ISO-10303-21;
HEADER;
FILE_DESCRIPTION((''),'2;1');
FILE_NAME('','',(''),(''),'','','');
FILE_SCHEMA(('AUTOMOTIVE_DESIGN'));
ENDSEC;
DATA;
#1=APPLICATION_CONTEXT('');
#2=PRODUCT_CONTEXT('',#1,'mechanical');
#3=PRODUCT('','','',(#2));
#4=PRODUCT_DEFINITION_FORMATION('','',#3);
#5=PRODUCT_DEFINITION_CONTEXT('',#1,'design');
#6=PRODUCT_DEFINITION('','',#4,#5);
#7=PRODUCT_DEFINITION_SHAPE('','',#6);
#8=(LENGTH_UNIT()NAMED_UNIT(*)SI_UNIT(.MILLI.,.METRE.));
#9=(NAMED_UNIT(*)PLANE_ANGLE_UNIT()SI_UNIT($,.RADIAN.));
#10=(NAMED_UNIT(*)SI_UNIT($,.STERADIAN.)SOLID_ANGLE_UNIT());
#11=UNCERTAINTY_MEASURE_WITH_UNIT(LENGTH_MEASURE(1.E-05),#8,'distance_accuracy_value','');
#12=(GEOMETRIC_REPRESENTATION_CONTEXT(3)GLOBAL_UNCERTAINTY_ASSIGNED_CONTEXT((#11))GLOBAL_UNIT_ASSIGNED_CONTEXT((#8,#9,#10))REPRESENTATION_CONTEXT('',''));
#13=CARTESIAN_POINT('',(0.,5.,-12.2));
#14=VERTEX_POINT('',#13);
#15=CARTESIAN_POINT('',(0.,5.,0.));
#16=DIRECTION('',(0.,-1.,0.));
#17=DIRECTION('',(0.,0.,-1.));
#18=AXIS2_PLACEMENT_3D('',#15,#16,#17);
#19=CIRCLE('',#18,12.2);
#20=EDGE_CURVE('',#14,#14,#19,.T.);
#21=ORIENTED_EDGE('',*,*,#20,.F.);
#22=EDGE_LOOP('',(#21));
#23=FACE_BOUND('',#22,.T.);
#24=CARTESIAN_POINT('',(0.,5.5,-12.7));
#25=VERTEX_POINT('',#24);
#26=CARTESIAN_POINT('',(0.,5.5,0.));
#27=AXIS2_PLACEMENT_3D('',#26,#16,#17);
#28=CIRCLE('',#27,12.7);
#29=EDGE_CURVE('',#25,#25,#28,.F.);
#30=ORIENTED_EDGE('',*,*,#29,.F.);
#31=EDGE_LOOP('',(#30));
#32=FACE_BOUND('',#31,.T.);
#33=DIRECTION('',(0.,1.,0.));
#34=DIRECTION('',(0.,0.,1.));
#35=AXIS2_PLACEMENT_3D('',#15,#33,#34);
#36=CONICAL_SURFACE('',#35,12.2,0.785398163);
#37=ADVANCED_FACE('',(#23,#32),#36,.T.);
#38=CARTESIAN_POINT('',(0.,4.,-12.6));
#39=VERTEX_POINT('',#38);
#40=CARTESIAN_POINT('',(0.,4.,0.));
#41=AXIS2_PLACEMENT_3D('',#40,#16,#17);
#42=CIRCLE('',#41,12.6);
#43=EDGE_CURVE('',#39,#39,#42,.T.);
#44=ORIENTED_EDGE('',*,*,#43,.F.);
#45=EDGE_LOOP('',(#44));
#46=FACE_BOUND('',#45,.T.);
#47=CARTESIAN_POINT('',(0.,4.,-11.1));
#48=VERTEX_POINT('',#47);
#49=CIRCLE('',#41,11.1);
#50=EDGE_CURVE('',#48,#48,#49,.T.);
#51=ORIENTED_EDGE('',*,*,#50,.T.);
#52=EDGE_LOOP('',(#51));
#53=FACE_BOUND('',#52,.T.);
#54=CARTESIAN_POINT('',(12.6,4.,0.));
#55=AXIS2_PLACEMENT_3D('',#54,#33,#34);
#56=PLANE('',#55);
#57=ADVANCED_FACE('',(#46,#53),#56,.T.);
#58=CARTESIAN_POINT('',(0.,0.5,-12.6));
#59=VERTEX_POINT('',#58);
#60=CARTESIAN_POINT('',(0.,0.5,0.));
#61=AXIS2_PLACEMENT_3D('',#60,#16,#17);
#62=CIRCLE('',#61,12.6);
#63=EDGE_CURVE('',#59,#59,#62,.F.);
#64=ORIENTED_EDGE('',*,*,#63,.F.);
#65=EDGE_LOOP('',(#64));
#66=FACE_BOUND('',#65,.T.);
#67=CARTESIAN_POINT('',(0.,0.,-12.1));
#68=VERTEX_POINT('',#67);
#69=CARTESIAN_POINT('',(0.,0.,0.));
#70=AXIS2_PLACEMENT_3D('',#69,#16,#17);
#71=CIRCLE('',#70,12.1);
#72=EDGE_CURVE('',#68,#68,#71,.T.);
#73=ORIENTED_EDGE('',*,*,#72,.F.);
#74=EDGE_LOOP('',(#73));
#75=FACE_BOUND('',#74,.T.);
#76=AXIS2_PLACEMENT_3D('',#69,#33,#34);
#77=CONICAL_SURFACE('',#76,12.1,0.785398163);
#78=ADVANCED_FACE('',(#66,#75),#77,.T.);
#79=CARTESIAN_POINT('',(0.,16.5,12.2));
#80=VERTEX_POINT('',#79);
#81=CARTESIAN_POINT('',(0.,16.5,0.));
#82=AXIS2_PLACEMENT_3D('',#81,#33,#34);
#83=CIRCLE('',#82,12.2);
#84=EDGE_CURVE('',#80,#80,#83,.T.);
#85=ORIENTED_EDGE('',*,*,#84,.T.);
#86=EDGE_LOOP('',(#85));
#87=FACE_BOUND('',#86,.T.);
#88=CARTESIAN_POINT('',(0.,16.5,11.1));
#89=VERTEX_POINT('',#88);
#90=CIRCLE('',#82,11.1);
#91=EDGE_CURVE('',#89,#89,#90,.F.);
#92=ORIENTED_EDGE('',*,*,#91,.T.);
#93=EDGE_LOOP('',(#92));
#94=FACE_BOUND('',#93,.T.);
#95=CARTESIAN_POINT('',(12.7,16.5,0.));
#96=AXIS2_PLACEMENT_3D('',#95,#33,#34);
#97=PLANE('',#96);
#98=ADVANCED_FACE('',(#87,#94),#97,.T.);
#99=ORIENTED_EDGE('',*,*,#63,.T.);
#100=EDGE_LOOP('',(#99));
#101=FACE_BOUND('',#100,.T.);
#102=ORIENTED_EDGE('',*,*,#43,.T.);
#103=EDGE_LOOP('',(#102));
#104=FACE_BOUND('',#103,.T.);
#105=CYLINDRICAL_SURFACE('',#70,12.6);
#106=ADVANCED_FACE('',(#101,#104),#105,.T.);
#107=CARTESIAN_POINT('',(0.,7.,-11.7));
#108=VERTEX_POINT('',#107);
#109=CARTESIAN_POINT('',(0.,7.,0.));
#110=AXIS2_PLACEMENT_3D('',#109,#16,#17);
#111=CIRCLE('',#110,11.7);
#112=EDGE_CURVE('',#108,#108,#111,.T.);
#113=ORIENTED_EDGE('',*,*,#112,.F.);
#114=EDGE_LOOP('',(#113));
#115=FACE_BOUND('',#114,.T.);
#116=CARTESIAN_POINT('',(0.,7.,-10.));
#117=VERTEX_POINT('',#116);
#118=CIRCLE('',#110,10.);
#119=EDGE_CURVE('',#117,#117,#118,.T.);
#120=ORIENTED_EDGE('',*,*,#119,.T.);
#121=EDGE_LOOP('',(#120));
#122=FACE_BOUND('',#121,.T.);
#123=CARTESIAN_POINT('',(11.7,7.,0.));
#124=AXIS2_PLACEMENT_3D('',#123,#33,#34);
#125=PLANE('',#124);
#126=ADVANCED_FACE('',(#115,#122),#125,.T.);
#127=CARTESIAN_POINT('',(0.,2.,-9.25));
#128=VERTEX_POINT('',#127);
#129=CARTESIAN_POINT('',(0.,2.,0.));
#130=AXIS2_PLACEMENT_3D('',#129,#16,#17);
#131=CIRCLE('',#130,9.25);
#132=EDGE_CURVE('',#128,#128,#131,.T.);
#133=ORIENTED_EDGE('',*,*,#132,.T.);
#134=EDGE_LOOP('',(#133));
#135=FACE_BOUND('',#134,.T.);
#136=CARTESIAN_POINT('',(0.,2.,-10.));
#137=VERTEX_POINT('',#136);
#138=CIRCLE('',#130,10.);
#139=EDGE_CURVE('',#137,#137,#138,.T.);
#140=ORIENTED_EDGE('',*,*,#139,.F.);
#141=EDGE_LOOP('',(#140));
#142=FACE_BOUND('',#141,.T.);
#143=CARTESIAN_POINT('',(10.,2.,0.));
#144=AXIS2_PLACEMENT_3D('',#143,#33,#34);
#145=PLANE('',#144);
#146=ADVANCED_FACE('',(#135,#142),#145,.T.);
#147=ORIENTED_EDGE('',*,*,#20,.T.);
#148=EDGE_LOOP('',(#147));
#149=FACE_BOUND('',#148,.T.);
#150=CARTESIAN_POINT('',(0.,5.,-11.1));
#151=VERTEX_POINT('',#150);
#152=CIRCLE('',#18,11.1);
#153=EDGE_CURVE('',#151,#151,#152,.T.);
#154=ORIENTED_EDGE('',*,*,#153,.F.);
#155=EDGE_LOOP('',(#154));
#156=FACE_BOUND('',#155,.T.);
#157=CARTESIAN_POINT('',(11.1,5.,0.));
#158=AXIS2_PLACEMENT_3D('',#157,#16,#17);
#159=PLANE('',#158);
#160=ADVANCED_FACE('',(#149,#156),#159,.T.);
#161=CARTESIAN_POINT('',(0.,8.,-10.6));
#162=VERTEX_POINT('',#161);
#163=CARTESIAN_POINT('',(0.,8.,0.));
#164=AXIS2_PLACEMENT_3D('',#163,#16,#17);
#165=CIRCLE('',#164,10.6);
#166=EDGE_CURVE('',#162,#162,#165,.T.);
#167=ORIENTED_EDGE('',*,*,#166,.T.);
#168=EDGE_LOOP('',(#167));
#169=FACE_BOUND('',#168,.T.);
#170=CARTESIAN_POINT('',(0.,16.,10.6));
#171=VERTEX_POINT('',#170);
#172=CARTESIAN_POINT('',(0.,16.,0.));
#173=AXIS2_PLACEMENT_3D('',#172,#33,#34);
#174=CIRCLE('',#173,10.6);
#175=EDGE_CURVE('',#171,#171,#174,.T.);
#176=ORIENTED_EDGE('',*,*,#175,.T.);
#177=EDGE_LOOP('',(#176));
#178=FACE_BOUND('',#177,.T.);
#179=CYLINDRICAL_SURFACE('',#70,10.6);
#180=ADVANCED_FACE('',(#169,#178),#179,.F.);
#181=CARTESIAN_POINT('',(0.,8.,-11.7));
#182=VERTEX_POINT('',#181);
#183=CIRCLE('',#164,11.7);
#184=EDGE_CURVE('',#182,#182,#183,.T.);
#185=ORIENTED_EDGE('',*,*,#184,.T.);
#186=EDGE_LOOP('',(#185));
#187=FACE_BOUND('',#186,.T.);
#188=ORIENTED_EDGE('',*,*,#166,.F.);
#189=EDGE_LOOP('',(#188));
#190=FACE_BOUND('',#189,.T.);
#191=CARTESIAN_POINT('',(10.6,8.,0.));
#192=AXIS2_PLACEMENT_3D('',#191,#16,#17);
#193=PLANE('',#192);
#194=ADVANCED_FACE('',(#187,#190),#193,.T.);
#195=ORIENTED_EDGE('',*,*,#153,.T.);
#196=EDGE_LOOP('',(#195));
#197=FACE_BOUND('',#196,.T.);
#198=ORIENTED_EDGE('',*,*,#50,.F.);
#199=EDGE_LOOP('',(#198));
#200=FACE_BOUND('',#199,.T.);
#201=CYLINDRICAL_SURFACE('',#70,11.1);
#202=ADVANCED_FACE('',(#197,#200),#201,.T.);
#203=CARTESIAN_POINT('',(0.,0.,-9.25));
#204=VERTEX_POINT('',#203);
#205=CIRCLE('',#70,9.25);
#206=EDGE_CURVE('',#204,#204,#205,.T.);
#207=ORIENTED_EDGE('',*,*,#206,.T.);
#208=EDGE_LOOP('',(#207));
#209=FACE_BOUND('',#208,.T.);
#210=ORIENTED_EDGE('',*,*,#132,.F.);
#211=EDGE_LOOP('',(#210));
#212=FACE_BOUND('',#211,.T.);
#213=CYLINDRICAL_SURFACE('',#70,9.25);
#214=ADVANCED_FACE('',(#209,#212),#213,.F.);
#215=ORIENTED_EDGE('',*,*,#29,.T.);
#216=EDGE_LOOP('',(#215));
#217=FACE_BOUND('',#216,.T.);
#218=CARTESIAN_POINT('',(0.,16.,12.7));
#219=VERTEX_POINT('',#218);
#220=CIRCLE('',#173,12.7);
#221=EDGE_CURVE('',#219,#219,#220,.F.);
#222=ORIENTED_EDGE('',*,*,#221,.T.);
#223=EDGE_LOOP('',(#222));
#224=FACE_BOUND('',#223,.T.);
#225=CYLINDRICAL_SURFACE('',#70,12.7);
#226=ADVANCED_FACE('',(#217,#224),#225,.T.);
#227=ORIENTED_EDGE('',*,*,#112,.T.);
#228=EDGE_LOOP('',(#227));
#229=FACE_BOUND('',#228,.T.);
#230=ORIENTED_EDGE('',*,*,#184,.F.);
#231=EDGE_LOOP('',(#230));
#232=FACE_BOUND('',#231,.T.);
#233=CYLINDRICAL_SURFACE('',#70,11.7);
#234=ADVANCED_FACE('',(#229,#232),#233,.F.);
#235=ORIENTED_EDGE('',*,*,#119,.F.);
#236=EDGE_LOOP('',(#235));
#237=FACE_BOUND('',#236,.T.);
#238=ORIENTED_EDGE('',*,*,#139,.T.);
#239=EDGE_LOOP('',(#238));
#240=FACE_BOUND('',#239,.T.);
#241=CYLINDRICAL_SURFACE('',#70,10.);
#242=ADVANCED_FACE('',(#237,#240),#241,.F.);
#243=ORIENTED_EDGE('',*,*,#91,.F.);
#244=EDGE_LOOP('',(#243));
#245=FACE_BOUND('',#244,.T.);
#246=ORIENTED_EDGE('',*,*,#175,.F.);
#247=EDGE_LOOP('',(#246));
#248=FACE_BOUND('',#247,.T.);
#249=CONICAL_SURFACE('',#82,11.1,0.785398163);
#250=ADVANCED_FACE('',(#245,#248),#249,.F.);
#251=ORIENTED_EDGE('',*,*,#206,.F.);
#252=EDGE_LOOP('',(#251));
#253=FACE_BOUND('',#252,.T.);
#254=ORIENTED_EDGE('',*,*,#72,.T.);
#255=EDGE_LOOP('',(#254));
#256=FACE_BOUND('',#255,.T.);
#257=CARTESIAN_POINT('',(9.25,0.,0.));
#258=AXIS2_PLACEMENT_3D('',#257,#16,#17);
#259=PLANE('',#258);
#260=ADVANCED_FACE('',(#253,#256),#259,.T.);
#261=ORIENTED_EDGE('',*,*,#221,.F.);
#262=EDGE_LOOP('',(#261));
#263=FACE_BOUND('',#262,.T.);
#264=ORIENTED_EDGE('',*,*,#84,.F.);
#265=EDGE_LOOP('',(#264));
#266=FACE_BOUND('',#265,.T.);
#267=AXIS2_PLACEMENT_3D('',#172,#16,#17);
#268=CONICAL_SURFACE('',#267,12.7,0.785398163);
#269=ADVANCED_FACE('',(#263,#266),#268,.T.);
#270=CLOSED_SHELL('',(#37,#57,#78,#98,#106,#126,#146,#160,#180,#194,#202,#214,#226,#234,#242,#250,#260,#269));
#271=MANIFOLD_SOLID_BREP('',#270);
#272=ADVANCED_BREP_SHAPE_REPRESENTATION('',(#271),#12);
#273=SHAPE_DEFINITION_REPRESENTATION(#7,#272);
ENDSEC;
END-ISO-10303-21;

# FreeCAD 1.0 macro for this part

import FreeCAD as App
import Part
import Sketcher
Q = App.Units.Quantity


def edges_at(feature, points):
    """Names of the edges that pass closest to the given points."""
    edges = feature.Shape.Edges
    near = lambda p: min(range(len(edges)), key=lambda i: edges[i].distToShape(Part.Vertex(*p))[0])
    return sorted({f"Edge{near(p) + 1}" for p in points})


def add_polygon(sketch, points):
    """Adds a closed chain of lines whose ends are joined by coincident constraints."""
    first, n = sketch.GeometryCount, len(points)
    for a, b in zip(points, points[1:] + points[:1]):
        sketch.addGeometry(Part.LineSegment(App.Vector(*a, 0), App.Vector(*b, 0)), False)
    for i in range(n):
        sketch.addConstraint(Sketcher.Constraint("Coincident", first + i, 2, first + (i + 1) % n, 1))

doc = App.newDocument("Part")
body = doc.addObject("PartDesign::Body", "Body")

# Sketch on XY plane
sketch1 = body.newObject("Sketcher::SketchObject", "Sketch")
sketch1.AttachmentSupport = (doc.getObject("XY_Plane"), [""])
sketch1.MapMode = "FlatFace"
add_polygon(sketch1, [(9.2, 0), (12.6, 0), (12.6, 4), (11.1, 4), (11.1, 5), (12.7, 5), (12.7, 16.5), (10.6, 16.5), (10.6, 8), (11.7, 8), (11.7, 7), (10, 7), (10, 2), (9.2, 2)])  # lines 0-13
sketch1.addConstraint([
    Sketcher.Constraint("Horizontal", 0),
    Sketcher.Constraint("Vertical", 1),
    Sketcher.Constraint("Horizontal", 2),
    Sketcher.Constraint("Vertical", 3),
    Sketcher.Constraint("Horizontal", 4),
    Sketcher.Constraint("Vertical", 5),
    Sketcher.Constraint("Horizontal", 6),
    Sketcher.Constraint("Vertical", 7),
    Sketcher.Constraint("Horizontal", 8),
    Sketcher.Constraint("Vertical", 9),
    Sketcher.Constraint("Horizontal", 10),
    Sketcher.Constraint("Vertical", 11),
    Sketcher.Constraint("Horizontal", 12),
    Sketcher.Constraint("Vertical", 13),
    Sketcher.Constraint("PointOnObject", 0, 2, -1),
    Sketcher.Constraint("Equal", 3, 9),
    Sketcher.Constraint("DistanceY", 1, 1, 1, 2, Q("4 mm")),
    Sketcher.Constraint("DistanceY", 3, 1, 3, 2, Q("1 mm")),
    Sketcher.Constraint("DistanceY", 11, 2, 11, 1, Q("5 mm")),
    Sketcher.Constraint("DistanceY", 13, 2, 13, 1, Q("2 mm")),
    Sketcher.Constraint("DistanceX", 2, 2, 2, 1, Q("1.5 mm")),
    Sketcher.Constraint("DistanceX", 4, 1, 4, 2, Q("1.6 mm")),
    Sketcher.Constraint("DistanceX", 6, 2, 6, 1, Q("2.1 mm")),
    Sketcher.Constraint("DistanceX", 8, 1, 8, 2, Q("1.1 mm")),
    Sketcher.Constraint("DistanceX", 10, 2, 10, 1, Q("1.7 mm")),
    Sketcher.Constraint("DistanceY", 5, 1, 5, 2, Q("11.5 mm")),
    Sketcher.Constraint("DistanceX", -1, 1, 10, 2, Q("10 mm")),
    Sketcher.Constraint("DistanceX", 0, 1, 0, 2, Q("3.35 mm")),
])
revolution = body.newObject("PartDesign::Revolution", "Revolution")
revolution.Profile = sketch1
revolution.ReferenceAxis = (sketch1, ["V_Axis"])
revolution.Angle = 360
doc.recompute()

chamfer = body.newObject("PartDesign::Chamfer", "Chamfer")
chamfer.Base = (revolution, edges_at(revolution, [
    (0, 16.5, 10.6),
    (0, 16.5, 12.7),
    (0, 5, 12.7),
    (0, 0, 12.6),
]))
chamfer.Size = 0.5

doc.recompute()
